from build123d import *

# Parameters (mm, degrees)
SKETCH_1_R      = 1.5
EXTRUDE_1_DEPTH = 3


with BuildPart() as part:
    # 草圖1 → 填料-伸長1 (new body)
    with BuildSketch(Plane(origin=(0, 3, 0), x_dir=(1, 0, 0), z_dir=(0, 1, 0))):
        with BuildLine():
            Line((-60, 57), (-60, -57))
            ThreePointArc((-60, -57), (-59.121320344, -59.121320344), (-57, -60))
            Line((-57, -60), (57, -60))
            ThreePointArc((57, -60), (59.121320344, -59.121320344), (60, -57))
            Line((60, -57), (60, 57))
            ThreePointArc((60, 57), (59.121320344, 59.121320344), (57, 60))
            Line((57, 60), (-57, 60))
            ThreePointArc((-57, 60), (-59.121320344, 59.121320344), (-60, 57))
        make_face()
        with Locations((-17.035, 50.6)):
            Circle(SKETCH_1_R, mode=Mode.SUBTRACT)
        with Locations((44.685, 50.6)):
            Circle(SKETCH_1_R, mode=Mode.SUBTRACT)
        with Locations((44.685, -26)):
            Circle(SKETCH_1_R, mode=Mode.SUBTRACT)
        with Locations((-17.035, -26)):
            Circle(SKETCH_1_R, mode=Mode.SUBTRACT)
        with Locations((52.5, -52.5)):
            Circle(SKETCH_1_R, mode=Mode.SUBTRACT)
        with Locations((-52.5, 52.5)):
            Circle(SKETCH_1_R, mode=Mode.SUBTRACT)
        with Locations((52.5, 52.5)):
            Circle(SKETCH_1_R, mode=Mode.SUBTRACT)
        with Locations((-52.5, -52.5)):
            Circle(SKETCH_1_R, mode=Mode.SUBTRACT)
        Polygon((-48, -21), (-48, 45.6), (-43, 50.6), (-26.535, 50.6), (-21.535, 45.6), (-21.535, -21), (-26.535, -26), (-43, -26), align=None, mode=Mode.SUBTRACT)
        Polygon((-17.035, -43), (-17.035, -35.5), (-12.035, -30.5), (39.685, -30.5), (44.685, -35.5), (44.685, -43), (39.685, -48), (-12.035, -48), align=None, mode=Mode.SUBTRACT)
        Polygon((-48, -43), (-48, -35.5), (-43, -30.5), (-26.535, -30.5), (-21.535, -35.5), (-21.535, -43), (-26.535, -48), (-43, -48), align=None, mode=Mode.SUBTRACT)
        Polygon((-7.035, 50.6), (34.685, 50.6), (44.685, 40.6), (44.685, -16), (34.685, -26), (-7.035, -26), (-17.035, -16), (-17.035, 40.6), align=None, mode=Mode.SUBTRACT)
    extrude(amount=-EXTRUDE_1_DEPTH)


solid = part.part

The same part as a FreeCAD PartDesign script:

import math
import FreeCAD as App
import Part
import Sketcher
Q = App.Units.Quantity

doc = App.newDocument("Part")
params = doc.addObject("Spreadsheet::Sheet", "Params")
for row, (alias, value) in enumerate([
    ("sketch1_diameter", "3 mm"),
    ("sketch1_radius", "3 mm"),
    ("sketch1_width", "114 mm"),
    ("sketch1_height", "7.5 mm"),
    ("sketch1_height2", "66.6 mm"),
    ("pad1_length", "3 mm"),
], start=1):
    params.set(f"A{row}", alias)
    params.set(f"B{row}", "=" + value)
    params.setAlias(f"B{row}", alias)

body = doc.addObject("PartDesign::Body", "Body")

# Sketch on XZ plane
sketch1 = body.newObject("Sketcher::SketchObject", "Sketch")
sketch1.AttachmentSupport = (doc.getObject("XZ_Plane"), [""])
sketch1.MapMode = "FlatFace"
sketch1.AttachmentOffset = App.Placement(App.Vector(0, 0, -3), App.Rotation())
sketch1.addGeometry(Part.LineSegment(App.Vector(-60, -57, 0), App.Vector(-60, 57, 0)), False)
sketch1.addGeometry(Part.ArcOfCircle(Part.Circle(App.Vector(-57, 57, 0), App.Vector(0, 0, 1), 3), math.radians(90), math.radians(180)), False)
sketch1.addGeometry(Part.LineSegment(App.Vector(-57, 60, 0), App.Vector(57, 60, 0)), False)
sketch1.addGeometry(Part.ArcOfCircle(Part.Circle(App.Vector(57, 57, 0), App.Vector(0, 0, 1), 3), math.radians(0), math.radians(90)), False)
sketch1.addGeometry(Part.LineSegment(App.Vector(60, 57, 0), App.Vector(60, -57, 0)), False)
sketch1.addGeometry(Part.ArcOfCircle(Part.Circle(App.Vector(57, -57, 0), App.Vector(0, 0, 1), 3), math.radians(-90), math.radians(0)), False)
sketch1.addGeometry(Part.LineSegment(App.Vector(57, -60, 0), App.Vector(-57, -60, 0)), False)
sketch1.addGeometry(Part.ArcOfCircle(Part.Circle(App.Vector(-57, -57, 0), App.Vector(0, 0, 1), 3), math.radians(180), math.radians(270)), False)
sketch1.addGeometry(Part.Circle(App.Vector(-52.5, 52.5, 0), App.Vector(0, 0, 1), 1.5), False)
sketch1.addGeometry(Part.LineSegment(App.Vector(-43, 48, 0), App.Vector(-48, 43, 0)), False)
sketch1.addGeometry(Part.LineSegment(App.Vector(-48, 43, 0), App.Vector(-48, 35.5, 0)), False)
sketch1.addGeometry(Part.LineSegment(App.Vector(-48, 35.5, 0), App.Vector(-43, 30.5, 0)), False)
sketch1.addGeometry(Part.LineSegment(App.Vector(-43, 30.5, 0), App.Vector(-26.5, 30.5, 0)), False)
sketch1.addGeometry(Part.LineSegment(App.Vector(-26.5, 30.5, 0), App.Vector(-21.5, 35.5, 0)), False)
sketch1.addGeometry(Part.LineSegment(App.Vector(-21.5, 35.5, 0), App.Vector(-21.5, 43, 0)), False)
sketch1.addGeometry(Part.LineSegment(App.Vector(-21.5, 43, 0), App.Vector(-26.5, 48, 0)), False)
sketch1.addGeometry(Part.LineSegment(App.Vector(-26.5, 48, 0), App.Vector(-43, 48, 0)), False)
sketch1.addGeometry(Part.Circle(App.Vector(-17, 26, 0), App.Vector(0, 0, 1), 1.5), False)
sketch1.addGeometry(Part.LineSegment(App.Vector(-12, 48, 0), App.Vector(-17, 43, 0)), False)
sketch1.addGeometry(Part.LineSegment(App.Vector(-17, 43, 0), App.Vector(-17, 35.5, 0)), False)
sketch1.addGeometry(Part.LineSegment(App.Vector(-17, 35.5, 0), App.Vector(-12, 30.5, 0)), False)
sketch1.addGeometry(Part.LineSegment(App.Vector(-12, 30.5, 0), App.Vector(39.7, 30.5, 0)), False)
sketch1.addGeometry(Part.LineSegment(App.Vector(39.7, 30.5, 0), App.Vector(44.7, 35.5, 0)), False)
sketch1.addGeometry(Part.LineSegment(App.Vector(44.7, 35.5, 0), App.Vector(44.7, 43, 0)), False)
sketch1.addGeometry(Part.LineSegment(App.Vector(44.7, 43, 0), App.Vector(39.7, 48, 0)), False)
sketch1.addGeometry(Part.LineSegment(App.Vector(39.7, 48, 0), App.Vector(-12, 48, 0)), False)
sketch1.addGeometry(Part.Circle(App.Vector(52.5, 52.5, 0), App.Vector(0, 0, 1), 1.5), False)
sketch1.addGeometry(Part.Circle(App.Vector(44.7, 26, 0), App.Vector(0, 0, 1), 1.5), False)
sketch1.addGeometry(Part.LineSegment(App.Vector(-43, 26, 0), App.Vector(-48, 21, 0)), False)
sketch1.addGeometry(Part.LineSegment(App.Vector(-48, 21, 0), App.Vector(-48, -45.6, 0)), False)
sketch1.addGeometry(Part.LineSegment(App.Vector(-48, -45.6, 0), App.Vector(-43, -50.6, 0)), False)
sketch1.addGeometry(Part.LineSegment(App.Vector(-43, -50.6, 0), App.Vector(-26.5, -50.6, 0)), False)
sketch1.addGeometry(Part.LineSegment(App.Vector(-26.5, -50.6, 0), App.Vector(-21.5, -45.6, 0)), False)
sketch1.addGeometry(Part.LineSegment(App.Vector(-21.5, -45.6, 0), App.Vector(-21.5, 21, 0)), False)
sketch1.addGeometry(Part.LineSegment(App.Vector(-21.5, 21, 0), App.Vector(-26.5, 26, 0)), False)
sketch1.addGeometry(Part.LineSegment(App.Vector(-26.5, 26, 0), App.Vector(-43, 26, 0)), False)
sketch1.addGeometry(Part.Circle(App.Vector(-52.5, -52.5, 0), App.Vector(0, 0, 1), 1.5), False)
sketch1.addGeometry(Part.Circle(App.Vector(-17, -50.6, 0), App.Vector(0, 0, 1), 1.5), False)
sketch1.addGeometry(Part.LineSegment(App.Vector(-17, -40.6, 0), App.Vector(-7, -50.6, 0)), False)
sketch1.addGeometry(Part.LineSegment(App.Vector(-7, -50.6, 0), App.Vector(34.7, -50.6, 0)), False)
sketch1.addGeometry(Part.LineSegment(App.Vector(34.7, -50.6, 0), App.Vector(44.7, -40.6, 0)), False)
sketch1.addGeometry(Part.LineSegment(App.Vector(44.7, -40.6, 0), App.Vector(44.7, 16, 0)), False)
sketch1.addGeometry(Part.LineSegment(App.Vector(44.7, 16, 0), App.Vector(34.7, 26, 0)), False)
sketch1.addGeometry(Part.LineSegment(App.Vector(34.7, 26, 0), App.Vector(-7, 26, 0)), False)
sketch1.addGeometry(Part.LineSegment(App.Vector(-7, 26, 0), App.Vector(-17, 16, 0)), False)
sketch1.addGeometry(Part.LineSegment(App.Vector(-17, 16, 0), App.Vector(-17, -40.6, 0)), False)
sketch1.addGeometry(Part.Circle(App.Vector(44.7, -50.6, 0), App.Vector(0, 0, 1), 1.5), False)
sketch1.addGeometry(Part.Circle(App.Vector(52.5, -52.5, 0), App.Vector(0, 0, 1), 1.5), False)
sketch1.addConstraint(Sketcher.Constraint("Tangent", 0, 2, 1, 2))
sketch1.addConstraint(Sketcher.Constraint("Tangent", 1, 1, 2, 1))
sketch1.addConstraint(Sketcher.Constraint("Tangent", 2, 2, 3, 2))
sketch1.addConstraint(Sketcher.Constraint("Tangent", 3, 1, 4, 1))
sketch1.addConstraint(Sketcher.Constraint("Tangent", 4, 2, 5, 2))
sketch1.addConstraint(Sketcher.Constraint("Tangent", 5, 1, 6, 1))
sketch1.addConstraint(Sketcher.Constraint("Tangent", 6, 2, 7, 2))
sketch1.addConstraint(Sketcher.Constraint("Tangent", 7, 1, 0, 1))
sketch1.addConstraint(Sketcher.Constraint("Coincident", 9, 2, 10, 1))
sketch1.addConstraint(Sketcher.Constraint("Coincident", 10, 2, 11, 1))
sketch1.addConstraint(Sketcher.Constraint("Coincident", 11, 2, 12, 1))
sketch1.addConstraint(Sketcher.Constraint("Coincident", 12, 2, 13, 1))
sketch1.addConstraint(Sketcher.Constraint("Coincident", 13, 2, 14, 1))
sketch1.addConstraint(Sketcher.Constraint("Coincident", 14, 2, 15, 1))
sketch1.addConstraint(Sketcher.Constraint("Coincident", 15, 2, 16, 1))
sketch1.addConstraint(Sketcher.Constraint("Coincident", 16, 2, 9, 1))
sketch1.addConstraint(Sketcher.Constraint("Coincident", 18, 2, 19, 1))
sketch1.addConstraint(Sketcher.Constraint("Coincident", 19, 2, 20, 1))
sketch1.addConstraint(Sketcher.Constraint("Coincident", 20, 2, 21, 1))
sketch1.addConstraint(Sketcher.Constraint("Coincident", 21, 2, 22, 1))
sketch1.addConstraint(Sketcher.Constraint("Coincident", 22, 2, 23, 1))
sketch1.addConstraint(Sketcher.Constraint("Coincident", 23, 2, 24, 1))
sketch1.addConstraint(Sketcher.Constraint("Coincident", 24, 2, 25, 1))
sketch1.addConstraint(Sketcher.Constraint("Coincident", 25, 2, 18, 1))
sketch1.addConstraint(Sketcher.Constraint("Coincident", 28, 2, 29, 1))
sketch1.addConstraint(Sketcher.Constraint("Coincident", 29, 2, 30, 1))
sketch1.addConstraint(Sketcher.Constraint("Coincident", 30, 2, 31, 1))
sketch1.addConstraint(Sketcher.Constraint("Coincident", 31, 2, 32, 1))
sketch1.addConstraint(Sketcher.Constraint("Coincident", 32, 2, 33, 1))
sketch1.addConstraint(Sketcher.Constraint("Coincident", 33, 2, 34, 1))
sketch1.addConstraint(Sketcher.Constraint("Coincident", 34, 2, 35, 1))
sketch1.addConstraint(Sketcher.Constraint("Coincident", 35, 2, 28, 1))
sketch1.addConstraint(Sketcher.Constraint("Coincident", 38, 2, 39, 1))
sketch1.addConstraint(Sketcher.Constraint("Coincident", 39, 2, 40, 1))
sketch1.addConstraint(Sketcher.Constraint("Coincident", 40, 2, 41, 1))
sketch1.addConstraint(Sketcher.Constraint("Coincident", 41, 2, 42, 1))
sketch1.addConstraint(Sketcher.Constraint("Coincident", 42, 2, 43, 1))
sketch1.addConstraint(Sketcher.Constraint("Coincident", 43, 2, 44, 1))
sketch1.addConstraint(Sketcher.Constraint("Coincident", 44, 2, 45, 1))
sketch1.addConstraint(Sketcher.Constraint("Coincident", 45, 2, 38, 1))
sketch1.addConstraint(Sketcher.Constraint("Vertical", 0))
sketch1.addConstraint(Sketcher.Constraint("Horizontal", 2))
sketch1.addConstraint(Sketcher.Constraint("Vertical", 4))
sketch1.addConstraint(Sketcher.Constraint("Horizontal", 6))
sketch1.addConstraint(Sketcher.Constraint("Vertical", 10))
sketch1.addConstraint(Sketcher.Constraint("Horizontal", 12))
sketch1.addConstraint(Sketcher.Constraint("Vertical", 14))
sketch1.addConstraint(Sketcher.Constraint("Horizontal", 16))
sketch1.addConstraint(Sketcher.Constraint("Vertical", 19))
sketch1.addConstraint(Sketcher.Constraint("Horizontal", 21))
sketch1.addConstraint(Sketcher.Constraint("Vertical", 23))
sketch1.addConstraint(Sketcher.Constraint("Horizontal", 25))
sketch1.addConstraint(Sketcher.Constraint("Vertical", 29))
sketch1.addConstraint(Sketcher.Constraint("Horizontal", 31))
sketch1.addConstraint(Sketcher.Constraint("Vertical", 33))
sketch1.addConstraint(Sketcher.Constraint("Horizontal", 35))
sketch1.addConstraint(Sketcher.Constraint("Horizontal", 39))
sketch1.addConstraint(Sketcher.Constraint("Vertical", 41))
sketch1.addConstraint(Sketcher.Constraint("Horizontal", 43))
sketch1.addConstraint(Sketcher.Constraint("Vertical", 45))
sketch1.addConstraint(Sketcher.Constraint("Equal", 1, 3))
sketch1.addConstraint(Sketcher.Constraint("Equal", 3, 5))
sketch1.addConstraint(Sketcher.Constraint("Equal", 5, 7))
sketch1.addConstraint(Sketcher.Constraint("Equal", 8, 17))
sketch1.addConstraint(Sketcher.Constraint("Equal", 17, 26))
sketch1.addConstraint(Sketcher.Constraint("Equal", 26, 27))
sketch1.addConstraint(Sketcher.Constraint("Equal", 27, 36))
sketch1.addConstraint(Sketcher.Constraint("Equal", 36, 37))
sketch1.addConstraint(Sketcher.Constraint("Equal", 37, 46))
sketch1.addConstraint(Sketcher.Constraint("Equal", 46, 47))
sketch1.addConstraint(Sketcher.Constraint("Symmetric", 1, 3, 5, 3, -1, 1))
sketch1.addConstraint(Sketcher.Constraint("Symmetric", 26, 3, 36, 3, -1, 1))
sketch1.addConstraint(Sketcher.Constraint("Symmetric", 8, 3, 47, 3, -1, 1))
sketch1.addConstraint(Sketcher.Constraint("Symmetric", 8, 3, 26, 3, -2))
sketch1.addConstraint(Sketcher.Constraint("Perpendicular", 9, 11))
sketch1.addConstraint(Sketcher.Constraint("Perpendicular", 11, 13))
sketch1.addConstraint(Sketcher.Constraint("Perpendicular", 13, 15))
sketch1.addConstraint(Sketcher.Constraint("Perpendicular", 15, 18))
sketch1.addConstraint(Sketcher.Constraint("Perpendicular", 18, 20))
sketch1.addConstraint(Sketcher.Constraint("Perpendicular", 20, 22))
sketch1.addConstraint(Sketcher.Constraint("Perpendicular", 22, 24))
sketch1.addConstraint(Sketcher.Constraint("Perpendicular", 24, 28))
sketch1.addConstraint(Sketcher.Constraint("Perpendicular", 28, 30))
sketch1.addConstraint(Sketcher.Constraint("Perpendicular", 30, 32))
sketch1.addConstraint(Sketcher.Constraint("Perpendicular", 32, 34))
sketch1.addConstraint(Sketcher.Constraint("Parallel", 34, 38))
sketch1.addConstraint(Sketcher.Constraint("Perpendicular", 38, 40))
sketch1.addConstraint(Sketcher.Constraint("Perpendicular", 40, 42))
sketch1.addConstraint(Sketcher.Constraint("Perpendicular", 42, 44))
sketch1.addConstraint(Sketcher.Constraint("Horizontal", 17, 3, 27, 3))
sketch1.addConstraint(Sketcher.Constraint("Horizontal", 37, 3, 46, 3))
sketch1.addConstraint(Sketcher.Constraint("Horizontal", 10, 2, 13, 2))
sketch1.addConstraint(Sketcher.Constraint("Horizontal", 9, 2, 14, 2))
sketch1.addConstraint(Sketcher.Constraint("Horizontal", 14, 2, 18, 2))
sketch1.addConstraint(Sketcher.Constraint("Horizontal", 13, 2, 19, 2))
sketch1.addConstraint(Sketcher.Constraint("Horizontal", 12, 2, 20, 2))
sketch1.addConstraint(Sketcher.Constraint("Horizontal", 19, 2, 22, 2))
sketch1.addConstraint(Sketcher.Constraint("Horizontal", 18, 2, 23, 2))
sketch1.addConstraint(Sketcher.Constraint("Horizontal", 16, 2, 24, 2))
sketch1.addConstraint(Sketcher.Constraint("Horizontal", 46, 3, 30, 2))
sketch1.addConstraint(Sketcher.Constraint("Horizontal", 29, 2, 32, 2))
sketch1.addConstraint(Sketcher.Constraint("Horizontal", 28, 2, 33, 2))
sketch1.addConstraint(Sketcher.Constraint("Horizontal", 27, 3, 34, 2))
sketch1.addConstraint(Sketcher.Constraint("Horizontal", 31, 2, 38, 2))
sketch1.addConstraint(Sketcher.Constraint("Horizontal", 35, 2, 42, 2))
sketch1.addConstraint(Sketcher.Constraint("Horizontal", 41, 2, 44, 2))
sketch1.addConstraint(Sketcher.Constraint("Horizontal", 40, 2, 45, 2))
sketch1.addConstraint(Sketcher.Constraint("Vertical", 17, 3, 37, 3))
sketch1.addConstraint(Sketcher.Constraint("Vertical", 27, 3, 46, 3))
sketch1.addConstraint(Sketcher.Constraint("Vertical", 12, 2, 15, 2))
sketch1.addConstraint(Sketcher.Constraint("Vertical", 11, 2, 16, 2))
sketch1.addConstraint(Sketcher.Constraint("Vertical", 37, 3, 18, 2))
sketch1.addConstraint(Sketcher.Constraint("Vertical", 46, 3, 22, 2))
sketch1.addConstraint(Sketcher.Constraint("Vertical", 10, 2, 28, 2))
sketch1.addConstraint(Sketcher.Constraint("Vertical", 16, 2, 30, 2))
sketch1.addConstraint(Sketcher.Constraint("Vertical", 15, 2, 31, 2))
sketch1.addConstraint(Sketcher.Constraint("Vertical", 31, 2, 34, 2))
sketch1.addConstraint(Sketcher.Constraint("Vertical", 23, 2, 40, 2))
sketch1.addConstraint(Sketcher.Constraint("Vertical", 39, 2, 42, 2))
sketch1.addConstraint(Sketcher.Constraint("Vertical", 19, 2, 44, 2))
sketch1.addConstraint(Sketcher.Constraint("Equal", 6, 0))
sketch1.addConstraint(Sketcher.Constraint("Diameter", 8, Q("3 mm")))
sketch1.addConstraint(Sketcher.Constraint("Radius", 1, Q("3 mm")))
sketch1.addConstraint(Sketcher.Constraint("DistanceX", 2, 1, 2, 2, Q("114 mm")))
sketch1.addConstraint(Sketcher.Constraint("DistanceY", 10, 2, 10, 1, Q("7.5 mm")))
sketch1.addConstraint(Sketcher.Constraint("DistanceY", 29, 2, 29, 1, Q("66.6 mm")))
sketch1.addConstraint(Sketcher.Constraint("DistanceY", 41, 1, 41, 2, Q("56.6 mm")))
sketch1.addConstraint(Sketcher.Constraint("DistanceY", -1, 1, 17, 3, Q("26 mm")))
sketch1.addConstraint(Sketcher.Constraint("DistanceX", 9, 2, -1, 1, Q("48 mm")))
sketch1.addConstraint(Sketcher.Constraint("DistanceY", -1, 1, 9, 2, Q("43 mm")))
sketch1.addConstraint(Sketcher.Constraint("DistanceX", 11, 2, -1, 1, Q("43 mm")))
sketch1.addConstraint(Sketcher.Constraint("DistanceX", 8, 3, 26, 3, Q("105 mm")))
sketch1.addConstraint(Sketcher.Constraint("DistanceY", 36, 3, 8, 3, Q("105 mm")))
sketch1.addConstraint(Sketcher.Constraint("DistanceX", 21, 1, 21, 2, Q("51.72 mm")))
sketch1.addConstraint(Sketcher.Constraint("DistanceX", 12, 2, 17, 3, Q("9.5 mm")))
sketch1.addConstraint(Sketcher.Constraint("DistanceX", 12, 1, 12, 2, Q("16.465 mm")))
sketch1.setExpression("Constraints[121]", "Params.sketch1_diameter")
sketch1.setExpression("Constraints[122]", "Params.sketch1_radius")
sketch1.setExpression("Constraints[123]", "Params.sketch1_width")
sketch1.setExpression("Constraints[124]", "Params.sketch1_height")
sketch1.setExpression("Constraints[125]", "Params.sketch1_height2")
pad1 = body.newObject("PartDesign::Pad", "Pad")
pad1.Profile = sketch1
pad1.setExpression("Length", "Params.pad1_length")

doc.recompute()
